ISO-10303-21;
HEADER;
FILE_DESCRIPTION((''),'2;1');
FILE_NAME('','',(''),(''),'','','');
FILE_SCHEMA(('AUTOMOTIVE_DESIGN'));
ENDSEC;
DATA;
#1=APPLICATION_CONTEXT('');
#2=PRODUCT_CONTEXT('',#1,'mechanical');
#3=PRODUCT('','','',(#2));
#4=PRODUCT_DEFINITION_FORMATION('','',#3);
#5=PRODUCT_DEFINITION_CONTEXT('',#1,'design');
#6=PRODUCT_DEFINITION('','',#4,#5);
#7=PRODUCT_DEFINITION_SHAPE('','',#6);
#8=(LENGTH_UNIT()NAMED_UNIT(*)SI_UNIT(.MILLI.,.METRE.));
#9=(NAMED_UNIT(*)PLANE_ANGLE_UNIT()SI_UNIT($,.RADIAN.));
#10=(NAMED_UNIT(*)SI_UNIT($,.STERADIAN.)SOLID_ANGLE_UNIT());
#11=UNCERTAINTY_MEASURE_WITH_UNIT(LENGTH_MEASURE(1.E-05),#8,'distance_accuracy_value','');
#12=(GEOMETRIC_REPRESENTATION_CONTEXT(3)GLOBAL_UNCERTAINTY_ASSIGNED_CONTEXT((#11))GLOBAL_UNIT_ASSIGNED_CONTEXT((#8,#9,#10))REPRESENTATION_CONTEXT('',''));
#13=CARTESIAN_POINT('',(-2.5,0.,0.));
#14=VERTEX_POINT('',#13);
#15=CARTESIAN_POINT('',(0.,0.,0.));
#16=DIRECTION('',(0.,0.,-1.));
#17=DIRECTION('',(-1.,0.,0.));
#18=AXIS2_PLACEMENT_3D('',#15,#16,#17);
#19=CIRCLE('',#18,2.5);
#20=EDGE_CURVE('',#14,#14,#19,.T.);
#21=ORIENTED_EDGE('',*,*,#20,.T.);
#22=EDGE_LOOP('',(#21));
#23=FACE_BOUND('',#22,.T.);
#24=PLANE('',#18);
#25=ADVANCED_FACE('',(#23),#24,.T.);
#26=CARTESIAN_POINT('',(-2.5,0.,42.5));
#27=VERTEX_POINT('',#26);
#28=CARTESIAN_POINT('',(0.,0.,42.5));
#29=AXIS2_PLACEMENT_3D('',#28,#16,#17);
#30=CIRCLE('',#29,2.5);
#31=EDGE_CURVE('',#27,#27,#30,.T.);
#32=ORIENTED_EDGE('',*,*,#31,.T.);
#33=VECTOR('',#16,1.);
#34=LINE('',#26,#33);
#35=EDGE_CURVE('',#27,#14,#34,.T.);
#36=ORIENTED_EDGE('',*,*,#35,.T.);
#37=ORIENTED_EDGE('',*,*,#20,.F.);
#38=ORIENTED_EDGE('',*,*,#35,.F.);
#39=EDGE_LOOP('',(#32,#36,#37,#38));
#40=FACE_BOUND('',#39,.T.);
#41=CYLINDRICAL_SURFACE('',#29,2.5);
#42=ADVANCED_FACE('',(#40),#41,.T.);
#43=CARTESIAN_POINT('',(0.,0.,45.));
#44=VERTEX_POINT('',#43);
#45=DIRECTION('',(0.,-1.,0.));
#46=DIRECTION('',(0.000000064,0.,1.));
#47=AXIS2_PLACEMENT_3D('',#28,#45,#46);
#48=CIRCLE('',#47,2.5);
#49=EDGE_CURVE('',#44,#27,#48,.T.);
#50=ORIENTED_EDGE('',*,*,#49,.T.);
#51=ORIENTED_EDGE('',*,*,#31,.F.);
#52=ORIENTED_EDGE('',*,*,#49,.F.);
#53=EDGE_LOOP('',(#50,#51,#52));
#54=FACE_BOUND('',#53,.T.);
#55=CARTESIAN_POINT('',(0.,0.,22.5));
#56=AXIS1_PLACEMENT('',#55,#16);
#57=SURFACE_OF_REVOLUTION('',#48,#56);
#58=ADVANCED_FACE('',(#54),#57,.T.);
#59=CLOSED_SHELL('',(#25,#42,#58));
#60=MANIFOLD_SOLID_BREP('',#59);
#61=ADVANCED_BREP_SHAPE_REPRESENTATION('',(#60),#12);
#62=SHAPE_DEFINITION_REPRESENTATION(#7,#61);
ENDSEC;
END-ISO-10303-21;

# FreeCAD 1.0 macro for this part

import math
import FreeCAD as App
import Part
import Sketcher

doc = App.newDocument("Part")
body = doc.addObject("PartDesign::Body", "Body")

sketch1 = doc.addObject("Sketcher::SketchObject", "Sketch")
body.addObject(sketch1)
sketch1.AttachmentSupport = (doc.XZ_Plane, [""])
sketch1.MapMode = "FlatFace"
sketch1.addGeometry([
    Part.LineSegment(App.Vector(0, 0, 0), App.Vector(0, 45, 0)),
    Part.ArcOfCircle(Part.Circle(App.Vector(0, 42.5, 0), App.Vector(0, 0, 1), 2.5), math.radians(89.999996), math.radians(180.000004)),
    Part.LineSegment(App.Vector(-2.5, 42.5, 0), App.Vector(-2.5, 0, 0)),
    Part.LineSegment(App.Vector(-2.5, 0, 0), App.Vector(0, 0, 0)),
], False)
sketch1.addConstraint([
    Sketcher.Constraint("Coincident", 0, 2, 1, 1),
    Sketcher.Constraint("Tangent", 1, 2, 2, 1),
    Sketcher.Constraint("Coincident", 2, 2, 3, 1),
    Sketcher.Constraint("Coincident", 3, 2, 0, 1),
    Sketcher.Constraint("Vertical", 0),
    Sketcher.Constraint("Vertical", 2),
    Sketcher.Constraint("Horizontal", 3),
    Sketcher.Constraint("Coincident", 3, 2, -1, 1),
    Sketcher.Constraint("PointOnObject", 1, 3, -2),
    Sketcher.Constraint("Radius", 1, 2.5),
    Sketcher.Constraint("DistanceY", 0, 1, 0, 2, 45.0),
])
revolution = doc.addObject("PartDesign::Revolution", "Revolution")
body.addObject(revolution)
revolution.Profile = sketch1
revolution.ReferenceAxis = (sketch1, ["V_Axis"])
revolution.Angle = 360

doc.recompute()
